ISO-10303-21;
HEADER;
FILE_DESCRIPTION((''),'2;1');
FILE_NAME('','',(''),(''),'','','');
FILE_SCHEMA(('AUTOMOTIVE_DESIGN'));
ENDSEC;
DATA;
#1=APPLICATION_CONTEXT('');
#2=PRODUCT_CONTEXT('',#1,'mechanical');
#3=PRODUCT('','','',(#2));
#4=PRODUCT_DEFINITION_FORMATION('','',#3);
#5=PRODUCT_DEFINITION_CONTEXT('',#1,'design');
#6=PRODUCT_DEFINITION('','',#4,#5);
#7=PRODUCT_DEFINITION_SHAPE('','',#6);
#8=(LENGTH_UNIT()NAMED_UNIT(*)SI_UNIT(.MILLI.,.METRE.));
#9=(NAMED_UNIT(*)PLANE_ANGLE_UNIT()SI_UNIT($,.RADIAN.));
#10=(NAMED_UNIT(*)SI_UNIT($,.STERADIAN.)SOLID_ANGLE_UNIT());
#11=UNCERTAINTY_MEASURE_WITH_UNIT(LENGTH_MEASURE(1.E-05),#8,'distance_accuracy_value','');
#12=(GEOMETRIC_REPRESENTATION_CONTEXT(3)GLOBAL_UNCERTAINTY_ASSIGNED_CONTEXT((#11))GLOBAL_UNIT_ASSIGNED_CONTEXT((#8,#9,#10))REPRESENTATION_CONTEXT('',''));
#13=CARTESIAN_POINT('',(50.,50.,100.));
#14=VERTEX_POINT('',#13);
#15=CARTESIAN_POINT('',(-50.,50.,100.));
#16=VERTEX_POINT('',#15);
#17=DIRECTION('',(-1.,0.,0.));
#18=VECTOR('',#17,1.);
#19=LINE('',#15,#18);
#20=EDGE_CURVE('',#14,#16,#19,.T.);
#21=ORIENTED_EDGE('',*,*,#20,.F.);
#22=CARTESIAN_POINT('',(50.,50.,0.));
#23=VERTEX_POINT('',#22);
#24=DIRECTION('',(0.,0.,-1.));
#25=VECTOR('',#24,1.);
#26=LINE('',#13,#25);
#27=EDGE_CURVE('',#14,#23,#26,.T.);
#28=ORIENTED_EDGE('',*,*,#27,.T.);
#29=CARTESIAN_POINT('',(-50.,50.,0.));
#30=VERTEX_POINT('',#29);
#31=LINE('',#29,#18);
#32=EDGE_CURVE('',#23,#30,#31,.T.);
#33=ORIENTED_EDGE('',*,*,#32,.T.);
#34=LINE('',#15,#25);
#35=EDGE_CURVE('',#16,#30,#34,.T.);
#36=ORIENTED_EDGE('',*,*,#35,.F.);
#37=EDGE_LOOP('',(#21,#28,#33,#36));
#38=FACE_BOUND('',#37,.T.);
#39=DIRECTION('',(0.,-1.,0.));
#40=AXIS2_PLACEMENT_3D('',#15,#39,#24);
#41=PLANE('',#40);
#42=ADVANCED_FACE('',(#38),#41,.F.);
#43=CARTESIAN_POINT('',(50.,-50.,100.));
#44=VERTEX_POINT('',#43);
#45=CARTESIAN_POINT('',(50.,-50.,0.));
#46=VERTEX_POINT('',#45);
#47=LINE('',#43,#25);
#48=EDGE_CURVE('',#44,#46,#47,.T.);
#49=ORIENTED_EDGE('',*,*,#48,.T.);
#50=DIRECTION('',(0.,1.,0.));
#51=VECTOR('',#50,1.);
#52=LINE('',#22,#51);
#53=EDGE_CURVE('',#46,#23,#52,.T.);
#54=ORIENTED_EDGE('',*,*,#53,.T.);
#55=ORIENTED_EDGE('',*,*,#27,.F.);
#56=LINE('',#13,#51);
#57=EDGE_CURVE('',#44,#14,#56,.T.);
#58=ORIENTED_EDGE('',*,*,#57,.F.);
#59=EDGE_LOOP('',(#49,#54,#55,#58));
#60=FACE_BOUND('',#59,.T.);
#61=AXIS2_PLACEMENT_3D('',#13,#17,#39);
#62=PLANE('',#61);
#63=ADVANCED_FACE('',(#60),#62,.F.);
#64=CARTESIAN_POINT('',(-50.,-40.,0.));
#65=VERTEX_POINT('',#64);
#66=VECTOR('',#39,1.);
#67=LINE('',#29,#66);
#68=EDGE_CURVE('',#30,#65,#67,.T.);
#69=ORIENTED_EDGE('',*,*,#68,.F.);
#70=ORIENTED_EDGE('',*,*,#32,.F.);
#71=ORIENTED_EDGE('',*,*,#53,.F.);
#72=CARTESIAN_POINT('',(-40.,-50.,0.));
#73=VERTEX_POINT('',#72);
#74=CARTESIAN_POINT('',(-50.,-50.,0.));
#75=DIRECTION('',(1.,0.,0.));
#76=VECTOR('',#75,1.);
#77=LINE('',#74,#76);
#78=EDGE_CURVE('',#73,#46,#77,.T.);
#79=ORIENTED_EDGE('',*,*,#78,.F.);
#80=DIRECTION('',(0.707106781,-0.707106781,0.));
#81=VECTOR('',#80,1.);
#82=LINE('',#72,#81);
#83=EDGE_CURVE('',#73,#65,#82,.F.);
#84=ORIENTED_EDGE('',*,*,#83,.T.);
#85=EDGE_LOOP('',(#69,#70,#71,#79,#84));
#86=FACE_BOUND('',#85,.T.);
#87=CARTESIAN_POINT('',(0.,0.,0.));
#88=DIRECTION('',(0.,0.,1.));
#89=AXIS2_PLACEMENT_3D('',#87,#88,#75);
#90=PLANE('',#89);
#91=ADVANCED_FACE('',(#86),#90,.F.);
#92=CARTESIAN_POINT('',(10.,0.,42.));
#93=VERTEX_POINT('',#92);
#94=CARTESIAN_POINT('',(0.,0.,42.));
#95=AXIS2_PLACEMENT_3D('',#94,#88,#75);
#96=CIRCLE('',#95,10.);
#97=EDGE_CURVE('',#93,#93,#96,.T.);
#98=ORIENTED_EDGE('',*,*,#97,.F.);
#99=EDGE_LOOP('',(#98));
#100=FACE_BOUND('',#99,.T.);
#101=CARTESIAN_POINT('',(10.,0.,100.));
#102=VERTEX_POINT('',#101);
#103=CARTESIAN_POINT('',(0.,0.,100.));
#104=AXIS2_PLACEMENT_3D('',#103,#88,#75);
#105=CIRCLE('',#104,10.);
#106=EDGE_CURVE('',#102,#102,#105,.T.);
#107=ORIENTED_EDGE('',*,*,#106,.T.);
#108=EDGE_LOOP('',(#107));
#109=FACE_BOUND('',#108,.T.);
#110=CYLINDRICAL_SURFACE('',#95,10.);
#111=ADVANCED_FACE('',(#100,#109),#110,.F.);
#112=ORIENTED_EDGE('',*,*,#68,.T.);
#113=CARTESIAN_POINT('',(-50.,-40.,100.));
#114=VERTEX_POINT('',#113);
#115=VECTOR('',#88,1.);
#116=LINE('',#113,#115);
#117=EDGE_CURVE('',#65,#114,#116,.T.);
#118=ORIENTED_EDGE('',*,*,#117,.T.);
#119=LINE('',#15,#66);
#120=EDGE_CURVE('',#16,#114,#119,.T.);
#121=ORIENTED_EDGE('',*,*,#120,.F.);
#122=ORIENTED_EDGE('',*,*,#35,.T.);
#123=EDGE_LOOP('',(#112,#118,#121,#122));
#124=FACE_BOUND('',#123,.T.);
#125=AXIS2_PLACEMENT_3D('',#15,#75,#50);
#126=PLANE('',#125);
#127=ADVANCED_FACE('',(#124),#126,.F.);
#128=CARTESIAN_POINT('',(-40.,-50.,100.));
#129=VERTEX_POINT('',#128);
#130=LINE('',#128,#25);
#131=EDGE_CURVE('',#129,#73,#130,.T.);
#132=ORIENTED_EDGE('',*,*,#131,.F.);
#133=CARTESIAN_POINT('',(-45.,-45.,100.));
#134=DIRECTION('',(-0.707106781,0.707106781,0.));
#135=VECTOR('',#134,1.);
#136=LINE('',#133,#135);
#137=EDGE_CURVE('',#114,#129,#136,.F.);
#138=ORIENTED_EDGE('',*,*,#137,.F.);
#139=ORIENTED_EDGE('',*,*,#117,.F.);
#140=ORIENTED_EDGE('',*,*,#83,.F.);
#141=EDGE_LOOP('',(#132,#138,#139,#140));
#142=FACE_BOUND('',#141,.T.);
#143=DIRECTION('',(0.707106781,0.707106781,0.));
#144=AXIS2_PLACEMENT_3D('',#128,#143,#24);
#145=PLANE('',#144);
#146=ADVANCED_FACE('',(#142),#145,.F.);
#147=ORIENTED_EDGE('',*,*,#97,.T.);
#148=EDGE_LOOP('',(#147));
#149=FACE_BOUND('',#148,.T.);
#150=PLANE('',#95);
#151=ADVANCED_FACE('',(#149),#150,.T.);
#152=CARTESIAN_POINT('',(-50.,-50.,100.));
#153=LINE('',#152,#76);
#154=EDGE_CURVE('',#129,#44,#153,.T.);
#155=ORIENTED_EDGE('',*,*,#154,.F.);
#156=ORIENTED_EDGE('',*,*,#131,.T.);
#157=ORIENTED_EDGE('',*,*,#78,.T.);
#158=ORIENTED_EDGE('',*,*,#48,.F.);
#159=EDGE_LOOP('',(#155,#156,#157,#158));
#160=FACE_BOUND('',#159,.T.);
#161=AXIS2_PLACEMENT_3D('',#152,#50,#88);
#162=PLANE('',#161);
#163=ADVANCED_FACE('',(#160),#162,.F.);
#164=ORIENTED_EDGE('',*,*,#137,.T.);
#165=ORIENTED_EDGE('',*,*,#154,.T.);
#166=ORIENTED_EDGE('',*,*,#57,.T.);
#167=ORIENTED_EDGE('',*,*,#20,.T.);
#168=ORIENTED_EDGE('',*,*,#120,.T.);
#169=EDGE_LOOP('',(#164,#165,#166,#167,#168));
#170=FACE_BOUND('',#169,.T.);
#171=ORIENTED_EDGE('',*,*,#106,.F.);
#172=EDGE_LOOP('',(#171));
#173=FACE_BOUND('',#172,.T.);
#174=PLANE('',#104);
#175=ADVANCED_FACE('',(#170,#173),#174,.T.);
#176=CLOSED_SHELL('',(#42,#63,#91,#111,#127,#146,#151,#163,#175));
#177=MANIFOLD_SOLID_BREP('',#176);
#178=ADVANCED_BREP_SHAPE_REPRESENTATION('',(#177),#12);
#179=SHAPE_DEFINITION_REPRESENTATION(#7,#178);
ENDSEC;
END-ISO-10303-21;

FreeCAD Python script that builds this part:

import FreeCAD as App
import Part
import Sketcher

V = App.Vector
Q = App.Units.Quantity


def edges_at(feature, points):
    """Names of the edges that pass closest to the given points."""
    edges = feature.Shape.Edges
    near = lambda p: min(range(len(edges)), key=lambda i: edges[i].distToShape(Part.Vertex(*p))[0])
    return sorted({f"Edge{near(p) + 1}" for p in points})


def add_polygon(sketch, points):
    """Adds a closed chain of lines whose ends are joined by coincident constraints."""
    first, n = sketch.GeometryCount, len(points)
    for a, b in zip(points, points[1:] + points[:1]):
        sketch.addGeometry(Part.LineSegment(App.Vector(*a, 0), App.Vector(*b, 0)), False)
    for i in range(n):
        sketch.addConstraint(Sketcher.Constraint("Coincident", first + i, 2, first + (i + 1) % n, 1))

doc = App.newDocument("Part")
body = doc.addObject("PartDesign::Body", "Body")

# Sketch on XY plane
sketch1 = body.newObject("Sketcher::SketchObject", "Sketch")
sketch1.AttachmentSupport = (doc.getObject("XY_Plane"), [""])
sketch1.MapMode = "FlatFace"
add_polygon(sketch1, [(-50, 50), (-50, -50), (50, -50), (50, 50)])  # lines 0-3
sketch1.addConstraint([
    Sketcher.Constraint("Vertical", 0),
    Sketcher.Constraint("Horizontal", 1),
    Sketcher.Constraint("Vertical", 2),
    Sketcher.Constraint("Horizontal", 3),
    Sketcher.Constraint("Symmetric", 0, 2, 2, 2, -1, 1),
    Sketcher.Constraint("Equal", 3, 0),
    Sketcher.Constraint("DistanceX", 1, 1, 1, 2, Q("100 mm")),
])
pad1 = body.newObject("PartDesign::Pad", "Pad")
pad1.Profile = sketch1
pad1.Length = 100

# Sketch on XY plane
sketch2 = body.newObject("Sketcher::SketchObject", "Sketch001")
sketch2.AttachmentSupport = (doc.getObject("XY_Plane"), [""])
sketch2.MapMode = "FlatFace"
sketch2.AttachmentOffset = App.Placement(V(0, 0, 100), App.Rotation())
sketch2.addGeometry(Part.Circle(V(0, 0, 0), V(0, 0, 1), 10), False)
sketch2.addConstraint([
    Sketcher.Constraint("Coincident", 0, 3, -1, 1),
    Sketcher.Constraint("Diameter", 0, Q("20 mm")),
])
pocket1 = body.newObject("PartDesign::Pocket", "Pocket")
pocket1.Profile = sketch2
pocket1.Length = 58
doc.recompute()

chamfer = body.newObject("PartDesign::Chamfer", "Chamfer")
chamfer.Base = (pocket1, edges_at(pocket1, [(-50, -50, 50)]))
chamfer.Size = 10

doc.recompute()
